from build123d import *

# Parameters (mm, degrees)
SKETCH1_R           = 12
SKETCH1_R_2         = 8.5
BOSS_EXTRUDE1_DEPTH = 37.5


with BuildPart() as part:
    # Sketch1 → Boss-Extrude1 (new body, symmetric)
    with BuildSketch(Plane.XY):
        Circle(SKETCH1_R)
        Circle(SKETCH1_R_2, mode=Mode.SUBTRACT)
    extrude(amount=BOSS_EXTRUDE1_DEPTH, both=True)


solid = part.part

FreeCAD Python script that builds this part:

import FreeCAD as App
import Part
import Sketcher
Q = App.Units.Quantity

doc = App.newDocument("Part")
body = doc.addObject("PartDesign::Body", "Body")

sketch1 = body.newObject("Sketcher::SketchObject", "Sketch")
sketch1.AttachmentSupport = (doc.getObject("XY_Plane"), [""])
sketch1.MapMode = "FlatFace"
sketch1.addGeometry([
    Part.Circle(App.Vector(0, 0, 0), App.Vector(0, 0, 1), 12),
    Part.Circle(App.Vector(0, 0, 0), App.Vector(0, 0, 1), 8),
], False)
sketch1.addConstraint([
    Sketcher.Constraint("Coincident", 0, 3, -1, 1),
    Sketcher.Constraint("Coincident", 1, 3, -1, 1),
    Sketcher.Constraint("Diameter", 0, Q("24 mm")),
    Sketcher.Constraint("Diameter", 1, Q("17 mm")),
])
pad1 = body.newObject("PartDesign::Pad", "Pad")
pad1.Profile = sketch1
pad1.Length = 75
pad1.Midplane = True

doc.recompute()
